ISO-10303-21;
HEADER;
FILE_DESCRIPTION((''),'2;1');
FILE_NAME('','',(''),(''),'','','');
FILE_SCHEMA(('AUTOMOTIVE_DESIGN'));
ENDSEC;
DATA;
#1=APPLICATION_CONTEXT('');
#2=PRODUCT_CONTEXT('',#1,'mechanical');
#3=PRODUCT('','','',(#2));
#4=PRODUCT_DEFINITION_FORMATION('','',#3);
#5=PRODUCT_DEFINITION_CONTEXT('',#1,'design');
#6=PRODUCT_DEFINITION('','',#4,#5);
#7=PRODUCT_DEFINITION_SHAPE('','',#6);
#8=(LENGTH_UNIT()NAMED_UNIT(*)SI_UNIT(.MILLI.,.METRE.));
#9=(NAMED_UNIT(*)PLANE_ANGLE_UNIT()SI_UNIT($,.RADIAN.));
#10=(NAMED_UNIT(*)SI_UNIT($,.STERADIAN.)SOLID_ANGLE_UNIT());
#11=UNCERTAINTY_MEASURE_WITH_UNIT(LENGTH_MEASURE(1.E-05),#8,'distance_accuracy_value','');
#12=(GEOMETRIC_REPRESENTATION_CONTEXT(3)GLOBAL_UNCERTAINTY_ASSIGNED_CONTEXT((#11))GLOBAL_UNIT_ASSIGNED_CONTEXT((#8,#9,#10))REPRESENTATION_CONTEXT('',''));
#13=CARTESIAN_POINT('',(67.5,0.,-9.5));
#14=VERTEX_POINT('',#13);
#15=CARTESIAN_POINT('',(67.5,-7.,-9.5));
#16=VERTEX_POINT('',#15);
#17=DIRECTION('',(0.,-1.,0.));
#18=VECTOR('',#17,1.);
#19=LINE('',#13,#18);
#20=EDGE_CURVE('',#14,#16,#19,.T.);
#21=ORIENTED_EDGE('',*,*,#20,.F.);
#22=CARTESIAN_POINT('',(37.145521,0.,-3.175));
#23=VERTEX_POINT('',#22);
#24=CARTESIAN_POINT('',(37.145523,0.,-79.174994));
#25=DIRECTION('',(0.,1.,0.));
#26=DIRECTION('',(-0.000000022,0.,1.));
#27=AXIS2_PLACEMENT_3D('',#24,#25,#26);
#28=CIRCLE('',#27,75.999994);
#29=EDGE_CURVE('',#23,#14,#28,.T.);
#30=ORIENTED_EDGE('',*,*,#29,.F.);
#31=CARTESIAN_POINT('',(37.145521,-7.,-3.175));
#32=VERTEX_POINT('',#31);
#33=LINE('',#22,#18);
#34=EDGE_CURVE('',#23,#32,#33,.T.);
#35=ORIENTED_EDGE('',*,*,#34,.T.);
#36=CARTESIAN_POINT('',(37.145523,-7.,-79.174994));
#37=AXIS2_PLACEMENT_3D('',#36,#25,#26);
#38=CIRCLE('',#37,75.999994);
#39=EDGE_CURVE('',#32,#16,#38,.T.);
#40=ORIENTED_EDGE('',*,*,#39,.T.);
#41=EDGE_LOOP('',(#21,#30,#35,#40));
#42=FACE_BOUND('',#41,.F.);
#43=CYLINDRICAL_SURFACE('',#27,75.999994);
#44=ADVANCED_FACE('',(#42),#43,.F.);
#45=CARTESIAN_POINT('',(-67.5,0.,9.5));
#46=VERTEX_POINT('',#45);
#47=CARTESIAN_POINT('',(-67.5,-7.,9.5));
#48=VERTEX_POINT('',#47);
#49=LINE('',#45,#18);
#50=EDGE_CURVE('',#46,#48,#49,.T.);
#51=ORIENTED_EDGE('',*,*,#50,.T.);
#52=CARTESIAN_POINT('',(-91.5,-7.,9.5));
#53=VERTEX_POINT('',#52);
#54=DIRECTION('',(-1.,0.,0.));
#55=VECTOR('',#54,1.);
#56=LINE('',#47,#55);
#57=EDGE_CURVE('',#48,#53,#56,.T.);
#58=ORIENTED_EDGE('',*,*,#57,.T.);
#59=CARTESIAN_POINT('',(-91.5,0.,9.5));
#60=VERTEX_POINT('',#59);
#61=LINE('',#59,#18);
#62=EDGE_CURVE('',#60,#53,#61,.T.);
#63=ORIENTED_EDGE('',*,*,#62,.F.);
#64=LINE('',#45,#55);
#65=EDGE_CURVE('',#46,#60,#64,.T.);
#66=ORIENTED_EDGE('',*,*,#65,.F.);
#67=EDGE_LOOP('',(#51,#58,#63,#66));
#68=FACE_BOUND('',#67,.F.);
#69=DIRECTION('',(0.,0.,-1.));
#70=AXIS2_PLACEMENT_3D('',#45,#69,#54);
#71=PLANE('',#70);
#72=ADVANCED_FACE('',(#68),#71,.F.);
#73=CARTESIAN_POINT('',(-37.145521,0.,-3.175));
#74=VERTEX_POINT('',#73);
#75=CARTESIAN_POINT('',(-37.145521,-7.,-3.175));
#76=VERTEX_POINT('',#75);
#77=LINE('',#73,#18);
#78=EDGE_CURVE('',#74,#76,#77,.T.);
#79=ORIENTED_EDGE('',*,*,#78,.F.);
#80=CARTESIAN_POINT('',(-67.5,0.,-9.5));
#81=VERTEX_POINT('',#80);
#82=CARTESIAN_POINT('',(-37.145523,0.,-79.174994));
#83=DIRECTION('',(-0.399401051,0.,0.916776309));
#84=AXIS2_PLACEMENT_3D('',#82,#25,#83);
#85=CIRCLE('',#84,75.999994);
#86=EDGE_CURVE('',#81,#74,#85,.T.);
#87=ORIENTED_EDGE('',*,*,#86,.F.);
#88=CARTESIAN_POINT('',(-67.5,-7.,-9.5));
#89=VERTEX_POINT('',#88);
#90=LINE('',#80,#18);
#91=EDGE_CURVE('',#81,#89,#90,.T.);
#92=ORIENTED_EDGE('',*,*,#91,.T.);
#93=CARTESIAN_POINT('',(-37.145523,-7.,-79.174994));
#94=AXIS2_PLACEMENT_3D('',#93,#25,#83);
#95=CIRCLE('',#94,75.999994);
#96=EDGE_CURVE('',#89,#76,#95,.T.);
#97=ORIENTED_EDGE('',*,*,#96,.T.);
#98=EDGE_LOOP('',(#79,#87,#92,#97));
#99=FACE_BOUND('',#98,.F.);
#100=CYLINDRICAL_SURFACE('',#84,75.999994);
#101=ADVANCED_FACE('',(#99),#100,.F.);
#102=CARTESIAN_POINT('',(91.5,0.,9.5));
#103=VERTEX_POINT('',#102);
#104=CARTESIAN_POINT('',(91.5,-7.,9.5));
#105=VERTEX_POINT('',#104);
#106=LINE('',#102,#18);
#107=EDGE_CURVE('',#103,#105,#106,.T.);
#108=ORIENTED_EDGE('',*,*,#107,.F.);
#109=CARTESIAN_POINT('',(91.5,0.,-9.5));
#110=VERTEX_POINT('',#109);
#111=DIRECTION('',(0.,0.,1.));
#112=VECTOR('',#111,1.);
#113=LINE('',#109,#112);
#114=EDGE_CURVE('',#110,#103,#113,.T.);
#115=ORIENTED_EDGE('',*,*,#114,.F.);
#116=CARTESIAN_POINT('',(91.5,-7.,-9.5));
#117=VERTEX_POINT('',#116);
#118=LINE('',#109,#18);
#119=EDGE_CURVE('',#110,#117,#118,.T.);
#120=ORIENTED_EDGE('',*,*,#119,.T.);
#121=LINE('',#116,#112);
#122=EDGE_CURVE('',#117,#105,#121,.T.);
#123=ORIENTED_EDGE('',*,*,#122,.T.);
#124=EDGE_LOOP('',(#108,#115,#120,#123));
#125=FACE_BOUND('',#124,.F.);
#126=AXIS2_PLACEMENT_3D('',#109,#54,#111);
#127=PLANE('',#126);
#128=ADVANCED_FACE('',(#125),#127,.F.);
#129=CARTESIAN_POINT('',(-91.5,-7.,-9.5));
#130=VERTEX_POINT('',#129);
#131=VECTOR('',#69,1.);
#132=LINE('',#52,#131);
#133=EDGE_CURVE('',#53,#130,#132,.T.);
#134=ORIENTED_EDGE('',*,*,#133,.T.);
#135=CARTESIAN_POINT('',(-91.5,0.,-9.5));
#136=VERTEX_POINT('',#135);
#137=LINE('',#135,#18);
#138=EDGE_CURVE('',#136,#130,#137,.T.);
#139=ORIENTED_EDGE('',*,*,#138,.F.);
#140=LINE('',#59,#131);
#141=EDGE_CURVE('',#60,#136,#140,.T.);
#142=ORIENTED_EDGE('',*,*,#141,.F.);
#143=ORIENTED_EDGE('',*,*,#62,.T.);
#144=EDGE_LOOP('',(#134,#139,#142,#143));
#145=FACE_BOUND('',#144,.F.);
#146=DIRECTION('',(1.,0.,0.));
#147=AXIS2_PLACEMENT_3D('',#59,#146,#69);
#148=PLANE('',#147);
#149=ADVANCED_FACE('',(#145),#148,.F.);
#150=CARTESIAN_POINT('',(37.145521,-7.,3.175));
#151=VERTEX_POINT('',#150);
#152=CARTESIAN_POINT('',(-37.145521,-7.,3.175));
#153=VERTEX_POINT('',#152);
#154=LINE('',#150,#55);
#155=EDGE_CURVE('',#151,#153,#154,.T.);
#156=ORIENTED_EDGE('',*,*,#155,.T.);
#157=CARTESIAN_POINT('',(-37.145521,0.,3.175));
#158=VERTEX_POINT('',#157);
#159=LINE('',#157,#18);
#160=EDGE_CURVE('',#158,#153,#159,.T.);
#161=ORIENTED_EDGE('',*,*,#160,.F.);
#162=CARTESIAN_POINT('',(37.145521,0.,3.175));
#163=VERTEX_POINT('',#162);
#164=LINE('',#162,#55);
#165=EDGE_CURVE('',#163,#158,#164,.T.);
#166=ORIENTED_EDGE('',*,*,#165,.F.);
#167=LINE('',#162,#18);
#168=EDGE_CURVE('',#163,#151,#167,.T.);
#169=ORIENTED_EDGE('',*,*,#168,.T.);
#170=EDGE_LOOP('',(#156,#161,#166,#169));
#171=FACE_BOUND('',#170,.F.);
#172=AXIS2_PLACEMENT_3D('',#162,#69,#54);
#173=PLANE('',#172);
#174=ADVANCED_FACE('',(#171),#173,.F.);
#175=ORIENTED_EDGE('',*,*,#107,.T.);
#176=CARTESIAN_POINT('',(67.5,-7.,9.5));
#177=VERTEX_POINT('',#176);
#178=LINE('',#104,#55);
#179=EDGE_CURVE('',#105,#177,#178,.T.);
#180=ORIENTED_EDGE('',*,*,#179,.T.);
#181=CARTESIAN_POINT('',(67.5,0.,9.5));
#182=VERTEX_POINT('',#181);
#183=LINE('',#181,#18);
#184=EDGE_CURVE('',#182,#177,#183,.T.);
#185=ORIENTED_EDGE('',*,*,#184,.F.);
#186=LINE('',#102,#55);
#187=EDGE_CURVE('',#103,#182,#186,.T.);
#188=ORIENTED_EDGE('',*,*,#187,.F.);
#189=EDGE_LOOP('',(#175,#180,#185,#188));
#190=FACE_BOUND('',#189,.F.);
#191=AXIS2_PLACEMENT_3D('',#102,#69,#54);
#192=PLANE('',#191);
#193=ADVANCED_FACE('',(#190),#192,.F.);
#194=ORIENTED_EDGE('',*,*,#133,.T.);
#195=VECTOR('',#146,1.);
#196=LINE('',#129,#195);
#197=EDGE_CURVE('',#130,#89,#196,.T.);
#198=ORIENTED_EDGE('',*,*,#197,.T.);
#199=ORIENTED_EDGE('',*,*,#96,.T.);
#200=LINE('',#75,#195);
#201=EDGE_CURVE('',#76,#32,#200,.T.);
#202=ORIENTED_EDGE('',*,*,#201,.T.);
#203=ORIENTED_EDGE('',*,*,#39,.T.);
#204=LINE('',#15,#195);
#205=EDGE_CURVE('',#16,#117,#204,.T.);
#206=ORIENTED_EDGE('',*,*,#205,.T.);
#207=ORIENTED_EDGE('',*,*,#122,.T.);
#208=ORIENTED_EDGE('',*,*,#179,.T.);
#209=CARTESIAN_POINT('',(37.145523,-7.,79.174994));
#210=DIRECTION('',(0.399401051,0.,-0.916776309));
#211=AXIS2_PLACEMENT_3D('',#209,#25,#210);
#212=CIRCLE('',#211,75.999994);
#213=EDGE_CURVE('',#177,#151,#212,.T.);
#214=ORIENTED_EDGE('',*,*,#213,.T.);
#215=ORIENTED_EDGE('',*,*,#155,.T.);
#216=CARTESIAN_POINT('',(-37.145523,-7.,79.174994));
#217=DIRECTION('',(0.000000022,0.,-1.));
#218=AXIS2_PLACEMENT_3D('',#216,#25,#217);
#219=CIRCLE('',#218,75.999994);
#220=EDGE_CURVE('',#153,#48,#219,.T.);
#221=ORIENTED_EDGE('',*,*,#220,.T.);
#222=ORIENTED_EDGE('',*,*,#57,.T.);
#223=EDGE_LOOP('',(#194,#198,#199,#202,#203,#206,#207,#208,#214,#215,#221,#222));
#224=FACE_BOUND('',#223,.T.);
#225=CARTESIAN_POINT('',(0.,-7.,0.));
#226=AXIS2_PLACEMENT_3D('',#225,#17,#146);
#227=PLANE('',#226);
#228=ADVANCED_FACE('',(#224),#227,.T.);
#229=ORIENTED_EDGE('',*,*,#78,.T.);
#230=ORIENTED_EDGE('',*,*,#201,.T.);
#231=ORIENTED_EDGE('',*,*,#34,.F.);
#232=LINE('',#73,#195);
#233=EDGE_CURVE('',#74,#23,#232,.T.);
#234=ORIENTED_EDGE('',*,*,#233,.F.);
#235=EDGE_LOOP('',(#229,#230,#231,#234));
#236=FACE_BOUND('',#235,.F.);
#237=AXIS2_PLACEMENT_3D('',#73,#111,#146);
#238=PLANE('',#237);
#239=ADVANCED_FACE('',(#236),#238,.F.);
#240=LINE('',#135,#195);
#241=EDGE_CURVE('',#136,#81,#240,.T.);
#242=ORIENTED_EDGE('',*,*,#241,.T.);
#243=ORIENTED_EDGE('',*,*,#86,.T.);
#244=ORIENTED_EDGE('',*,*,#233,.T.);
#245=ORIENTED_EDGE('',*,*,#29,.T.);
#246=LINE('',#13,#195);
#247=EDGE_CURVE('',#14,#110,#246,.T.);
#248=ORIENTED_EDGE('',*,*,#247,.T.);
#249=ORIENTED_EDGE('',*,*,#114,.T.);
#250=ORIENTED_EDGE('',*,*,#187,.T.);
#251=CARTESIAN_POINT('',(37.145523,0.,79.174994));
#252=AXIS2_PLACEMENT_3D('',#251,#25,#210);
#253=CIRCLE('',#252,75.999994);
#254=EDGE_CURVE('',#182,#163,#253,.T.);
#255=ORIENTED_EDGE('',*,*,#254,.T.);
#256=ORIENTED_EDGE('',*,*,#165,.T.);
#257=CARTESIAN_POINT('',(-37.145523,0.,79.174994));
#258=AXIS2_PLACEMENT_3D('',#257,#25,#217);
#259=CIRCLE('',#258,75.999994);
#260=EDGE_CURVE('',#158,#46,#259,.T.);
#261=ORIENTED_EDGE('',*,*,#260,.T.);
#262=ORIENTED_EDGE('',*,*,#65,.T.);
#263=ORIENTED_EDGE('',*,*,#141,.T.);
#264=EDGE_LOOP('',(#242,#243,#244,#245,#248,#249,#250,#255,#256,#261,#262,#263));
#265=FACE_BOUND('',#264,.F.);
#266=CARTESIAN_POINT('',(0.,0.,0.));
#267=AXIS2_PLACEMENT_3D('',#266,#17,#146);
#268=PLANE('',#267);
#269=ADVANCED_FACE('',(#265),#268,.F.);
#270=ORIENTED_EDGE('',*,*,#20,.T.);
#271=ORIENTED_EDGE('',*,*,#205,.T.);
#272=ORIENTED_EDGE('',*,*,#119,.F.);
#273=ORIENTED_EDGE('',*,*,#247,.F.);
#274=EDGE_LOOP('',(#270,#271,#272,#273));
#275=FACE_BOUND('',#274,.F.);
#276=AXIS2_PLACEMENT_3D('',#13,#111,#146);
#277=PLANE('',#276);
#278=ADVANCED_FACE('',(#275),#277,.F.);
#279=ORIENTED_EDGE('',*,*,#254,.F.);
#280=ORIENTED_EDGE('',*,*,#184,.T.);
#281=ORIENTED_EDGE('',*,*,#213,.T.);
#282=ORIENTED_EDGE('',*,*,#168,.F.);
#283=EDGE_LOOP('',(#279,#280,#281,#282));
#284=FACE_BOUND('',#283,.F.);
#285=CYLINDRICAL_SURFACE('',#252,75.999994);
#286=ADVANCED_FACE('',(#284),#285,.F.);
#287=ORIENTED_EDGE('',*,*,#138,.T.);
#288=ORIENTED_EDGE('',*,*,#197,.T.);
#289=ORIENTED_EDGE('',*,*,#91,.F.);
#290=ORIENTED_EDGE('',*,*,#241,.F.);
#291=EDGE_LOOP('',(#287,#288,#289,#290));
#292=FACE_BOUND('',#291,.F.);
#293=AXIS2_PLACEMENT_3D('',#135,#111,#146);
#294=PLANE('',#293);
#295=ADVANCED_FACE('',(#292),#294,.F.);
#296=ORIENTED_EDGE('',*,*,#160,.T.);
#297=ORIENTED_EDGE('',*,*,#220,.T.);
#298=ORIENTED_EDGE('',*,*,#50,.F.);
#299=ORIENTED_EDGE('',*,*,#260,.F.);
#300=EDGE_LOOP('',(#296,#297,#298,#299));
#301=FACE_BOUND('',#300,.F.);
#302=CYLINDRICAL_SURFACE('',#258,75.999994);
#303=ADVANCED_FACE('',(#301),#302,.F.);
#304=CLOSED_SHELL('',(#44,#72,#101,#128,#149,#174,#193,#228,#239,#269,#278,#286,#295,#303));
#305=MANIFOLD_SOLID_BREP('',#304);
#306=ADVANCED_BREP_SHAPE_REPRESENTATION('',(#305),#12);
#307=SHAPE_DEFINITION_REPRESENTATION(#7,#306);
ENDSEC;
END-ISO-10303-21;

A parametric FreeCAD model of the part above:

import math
import FreeCAD as App
import Part
import Sketcher
from FreeCAD import Vector
Q = App.Units.Quantity

doc = App.newDocument("Part")
body = doc.addObject("PartDesign::Body", "Body")

sketch1 = body.newObject("Sketcher::SketchObject", "Sketch")
sketch1.AttachmentSupport = (doc.getObject("XZ_Plane"), [""])
sketch1.MapMode = "FlatFace"
sketch1.addGeometry([
    Part.LineSegment(Vector(37.145521, 3.175, 0), Vector(-37.145521, 3.175, 0)),
    Part.ArcOfCircle(Part.Circle(Vector(-37.145523, 79.174994, 0), Vector(0, 0, 1), 75.999994), math.radians(-113.540741), math.radians(-89.999999)),
    Part.LineSegment(Vector(-67.5, 9.5, 0), Vector(-91.5, 9.5, 0)),
    Part.LineSegment(Vector(-91.5, 9.5, 0), Vector(-91.5, -9.5, 0)),
    Part.LineSegment(Vector(-91.5, -9.5, 0), Vector(-67.5, -9.5, 0)),
    Part.ArcOfCircle(Part.Circle(Vector(-37.145523, -79.174994, 0), Vector(0, 0, 1), 75.999994), math.radians(89.999999), math.radians(113.540741)),
    Part.LineSegment(Vector(-37.145521, -3.175, 0), Vector(37.145521, -3.175, 0)),
    Part.ArcOfCircle(Part.Circle(Vector(37.145523, -79.174994, 0), Vector(0, 0, 1), 75.999994), math.radians(66.459259), math.radians(90.000001)),
    Part.LineSegment(Vector(67.5, -9.5, 0), Vector(91.5, -9.5, 0)),
    Part.LineSegment(Vector(91.5, -9.5, 0), Vector(91.5, 9.5, 0)),
    Part.LineSegment(Vector(91.5, 9.5, 0), Vector(67.5, 9.5, 0)),
    Part.ArcOfCircle(Part.Circle(Vector(37.145523, 79.174994, 0), Vector(0, 0, 1), 75.999994), math.radians(-90.000001), math.radians(-66.459259)),
], False)
sketch1.addConstraint([
    Sketcher.Constraint("Tangent", 0, 2, 1, 2),
    Sketcher.Constraint("Coincident", 1, 1, 2, 1),
    Sketcher.Constraint("Coincident", 2, 2, 3, 1),
    Sketcher.Constraint("Coincident", 3, 2, 4, 1),
    Sketcher.Constraint("Coincident", 4, 2, 5, 2),
    Sketcher.Constraint("Tangent", 5, 1, 6, 1),
    Sketcher.Constraint("Tangent", 6, 2, 7, 2),
    Sketcher.Constraint("Coincident", 7, 1, 8, 1),
    Sketcher.Constraint("Coincident", 8, 2, 9, 1),
    Sketcher.Constraint("Coincident", 9, 2, 10, 1),
    Sketcher.Constraint("Coincident", 10, 2, 11, 2),
    Sketcher.Constraint("Tangent", 11, 1, 0, 1),
    Sketcher.Constraint("Horizontal", 0),
    Sketcher.Constraint("Horizontal", 2),
    Sketcher.Constraint("Vertical", 3),
    Sketcher.Constraint("Horizontal", 4),
    Sketcher.Constraint("Horizontal", 6),
    Sketcher.Constraint("Horizontal", 8),
    Sketcher.Constraint("Vertical", 9),
    Sketcher.Constraint("Horizontal", 10),
    Sketcher.Constraint("Equal", 1, 5),
    Sketcher.Constraint("Equal", 5, 7),
    Sketcher.Constraint("Equal", 7, 11),
    Sketcher.Constraint("Symmetric", 1, 3, 7, 3, -1, 1),
    Sketcher.Constraint("Symmetric", 2, 2, 8, 2, -1, 1),
    Sketcher.Constraint("Symmetric", 4, 2, 10, 2, -1, 1),
    Sketcher.Constraint("Symmetric", 4, 2, 7, 1, -2),
    Sketcher.Constraint("DistanceX", 2, 2, 2, 1, Q("24 mm")),
    Sketcher.Constraint("DistanceY", 3, 2, 3, 1, Q("19 mm")),
    Sketcher.Constraint("DistanceX", 1, 1, -1, 1, Q("67.5 mm")),
    Sketcher.Constraint("DistanceY", 5, 1, 0, 2, Q("6.35 mm")),
    Sketcher.Constraint("Radius", 1, Q("75.999994 mm")),
])
pad1 = body.newObject("PartDesign::Pad", "Pad")
pad1.Profile = sketch1
pad1.Length = 7

doc.recompute()
